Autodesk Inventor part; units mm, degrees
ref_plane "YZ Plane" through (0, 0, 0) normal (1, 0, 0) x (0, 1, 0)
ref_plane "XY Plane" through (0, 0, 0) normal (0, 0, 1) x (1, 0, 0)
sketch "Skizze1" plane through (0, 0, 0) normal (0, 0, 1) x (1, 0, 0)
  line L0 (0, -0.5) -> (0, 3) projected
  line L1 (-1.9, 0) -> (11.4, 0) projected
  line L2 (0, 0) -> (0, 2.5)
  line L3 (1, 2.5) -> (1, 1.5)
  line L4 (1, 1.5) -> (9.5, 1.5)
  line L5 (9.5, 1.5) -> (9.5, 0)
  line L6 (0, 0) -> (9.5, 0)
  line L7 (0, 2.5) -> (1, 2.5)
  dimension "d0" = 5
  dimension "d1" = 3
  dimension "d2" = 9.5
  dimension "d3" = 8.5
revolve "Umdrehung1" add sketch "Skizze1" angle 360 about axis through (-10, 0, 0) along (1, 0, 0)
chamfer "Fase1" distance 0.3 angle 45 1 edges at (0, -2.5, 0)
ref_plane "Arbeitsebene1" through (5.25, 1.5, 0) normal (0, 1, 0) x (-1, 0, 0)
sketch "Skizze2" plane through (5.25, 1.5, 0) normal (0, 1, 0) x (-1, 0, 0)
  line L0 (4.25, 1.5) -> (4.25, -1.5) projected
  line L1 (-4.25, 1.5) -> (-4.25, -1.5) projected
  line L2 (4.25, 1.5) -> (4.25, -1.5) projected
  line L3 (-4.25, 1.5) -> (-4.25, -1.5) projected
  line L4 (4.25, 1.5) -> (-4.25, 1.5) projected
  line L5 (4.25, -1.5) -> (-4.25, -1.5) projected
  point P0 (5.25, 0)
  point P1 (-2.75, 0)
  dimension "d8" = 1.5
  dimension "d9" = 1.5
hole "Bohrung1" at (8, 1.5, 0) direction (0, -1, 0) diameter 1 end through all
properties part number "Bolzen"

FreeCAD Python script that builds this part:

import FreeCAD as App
import Part
import Sketcher
from FreeCAD import Vector


def edges_at(feature, points):
    """Names of the edges that pass closest to the given points."""
    edges = feature.Shape.Edges
    near = lambda p: min(range(len(edges)), key=lambda i: edges[i].distToShape(Part.Vertex(*p))[0])
    return sorted({f"Edge{near(p) + 1}" for p in points})

doc = App.newDocument("Part")
params = doc.addObject("Spreadsheet::Sheet", "Params")
for row, (alias, value) in enumerate([
    ("sketch1_width", "9.5 mm"),
    ("sketch1_width2", "8.5 mm"),
    ("sketch1_height", "2.5 mm"),
    ("revolution_angle", "360 deg"),
    ("chamfer_size", "0.3 mm"),
    ("sketch2_diameter", "1 mm"),
    ("hole_diameter", "1 mm"),
], start=1):
    params.set(f"A{row}", alias)
    params.set(f"B{row}", "=" + value)
    params.setAlias(f"B{row}", alias)

body = doc.addObject("PartDesign::Body", "Body")

# Sketch on XY plane
sketch1 = body.newObject("Sketcher::SketchObject", "Sketch")
sketch1.AttachmentSupport = (doc.getObject("XY_Plane"), [""])
sketch1.MapMode = "FlatFace"
sketch1.addGeometry([
    Part.LineSegment(Vector(0, 2.5, 0), Vector(0, 0, 0)),  # 0
    Part.LineSegment(Vector(0, 0, 0), Vector(9.5, 0, 0)),  # 1
    Part.LineSegment(Vector(9.5, 0, 0), Vector(9.5, 1.5, 0)),  # 2
    Part.LineSegment(Vector(9.5, 1.5, 0), Vector(1, 1.5, 0)),  # 3
    Part.LineSegment(Vector(1, 1.5, 0), Vector(1, 2.5, 0)),  # 4
    Part.LineSegment(Vector(1, 2.5, 0), Vector(0, 2.5, 0)),  # 5
], False)
sketch1.addConstraint([
    Sketcher.Constraint("Coincident", 0, 2, 1, 1),
    Sketcher.Constraint("Coincident", 1, 2, 2, 1),
    Sketcher.Constraint("Coincident", 2, 2, 3, 1),
    Sketcher.Constraint("Coincident", 3, 2, 4, 1),
    Sketcher.Constraint("Coincident", 4, 2, 5, 1),
    Sketcher.Constraint("Coincident", 5, 2, 0, 1),
    Sketcher.Constraint("Vertical", 0),
    Sketcher.Constraint("Horizontal", 1),
    Sketcher.Constraint("Vertical", 2),
    Sketcher.Constraint("Horizontal", 3),
    Sketcher.Constraint("Vertical", 4),
    Sketcher.Constraint("Horizontal", 5),
    Sketcher.Constraint("Coincident", 0, 2, -1, 1),
    Sketcher.Constraint("Equal", 5, 4),
    Sketcher.Constraint("DistanceX", 1, 1, 1, 2, 9.5),
    Sketcher.Constraint("DistanceX", 3, 2, 3, 1, 8.5),
    Sketcher.Constraint("DistanceY", 0, 2, 0, 1, 2.5),
])
sketch1.setExpression("Constraints[14]", "Params.sketch1_width")
sketch1.setExpression("Constraints[15]", "Params.sketch1_width2")
sketch1.setExpression("Constraints[16]", "Params.sketch1_height")
revolution = body.newObject("PartDesign::Revolution", "Revolution")
revolution.Profile = sketch1
revolution.ReferenceAxis = (sketch1, ["H_Axis"])
revolution.setExpression("Angle", "Params.revolution_angle")
doc.recompute()

chamfer = body.newObject("PartDesign::Chamfer", "Chamfer")
chamfer.Base = (revolution, edges_at(revolution, [(0, -2.5, 0)]))
chamfer.setExpression("Size", "Params.chamfer_size")

# Sketch on XZ plane
sketch2 = body.newObject("Sketcher::SketchObject", "Sketch001")
sketch2.AttachmentSupport = (doc.getObject("XZ_Plane"), [""])
sketch2.MapMode = "FlatFace"
sketch2.AttachmentOffset = App.Placement(Vector(0, 0, -1.5), App.Rotation())
sketch2.addGeometry(Part.Circle(Vector(8, 0, 0), Vector(0, 0, 1), 0.5), False)
sketch2.addConstraint([
    Sketcher.Constraint("PointOnObject", 0, 3, -1),
    Sketcher.Constraint("Diameter", 0, 1.0),
    Sketcher.Constraint("DistanceX", -1, 1, 0, 3, 8.0),
])
sketch2.setExpression("Constraints[1]", "Params.sketch2_diameter")
doc.recompute()
hole = body.newObject("PartDesign::Hole", "Hole")
hole.Profile = sketch2
hole.ThreadType = "None"
hole.setExpression("Diameter", "Params.hole_diameter")
hole.DepthType = "ThroughAll"
hole.Reversed = True

doc.recompute()
